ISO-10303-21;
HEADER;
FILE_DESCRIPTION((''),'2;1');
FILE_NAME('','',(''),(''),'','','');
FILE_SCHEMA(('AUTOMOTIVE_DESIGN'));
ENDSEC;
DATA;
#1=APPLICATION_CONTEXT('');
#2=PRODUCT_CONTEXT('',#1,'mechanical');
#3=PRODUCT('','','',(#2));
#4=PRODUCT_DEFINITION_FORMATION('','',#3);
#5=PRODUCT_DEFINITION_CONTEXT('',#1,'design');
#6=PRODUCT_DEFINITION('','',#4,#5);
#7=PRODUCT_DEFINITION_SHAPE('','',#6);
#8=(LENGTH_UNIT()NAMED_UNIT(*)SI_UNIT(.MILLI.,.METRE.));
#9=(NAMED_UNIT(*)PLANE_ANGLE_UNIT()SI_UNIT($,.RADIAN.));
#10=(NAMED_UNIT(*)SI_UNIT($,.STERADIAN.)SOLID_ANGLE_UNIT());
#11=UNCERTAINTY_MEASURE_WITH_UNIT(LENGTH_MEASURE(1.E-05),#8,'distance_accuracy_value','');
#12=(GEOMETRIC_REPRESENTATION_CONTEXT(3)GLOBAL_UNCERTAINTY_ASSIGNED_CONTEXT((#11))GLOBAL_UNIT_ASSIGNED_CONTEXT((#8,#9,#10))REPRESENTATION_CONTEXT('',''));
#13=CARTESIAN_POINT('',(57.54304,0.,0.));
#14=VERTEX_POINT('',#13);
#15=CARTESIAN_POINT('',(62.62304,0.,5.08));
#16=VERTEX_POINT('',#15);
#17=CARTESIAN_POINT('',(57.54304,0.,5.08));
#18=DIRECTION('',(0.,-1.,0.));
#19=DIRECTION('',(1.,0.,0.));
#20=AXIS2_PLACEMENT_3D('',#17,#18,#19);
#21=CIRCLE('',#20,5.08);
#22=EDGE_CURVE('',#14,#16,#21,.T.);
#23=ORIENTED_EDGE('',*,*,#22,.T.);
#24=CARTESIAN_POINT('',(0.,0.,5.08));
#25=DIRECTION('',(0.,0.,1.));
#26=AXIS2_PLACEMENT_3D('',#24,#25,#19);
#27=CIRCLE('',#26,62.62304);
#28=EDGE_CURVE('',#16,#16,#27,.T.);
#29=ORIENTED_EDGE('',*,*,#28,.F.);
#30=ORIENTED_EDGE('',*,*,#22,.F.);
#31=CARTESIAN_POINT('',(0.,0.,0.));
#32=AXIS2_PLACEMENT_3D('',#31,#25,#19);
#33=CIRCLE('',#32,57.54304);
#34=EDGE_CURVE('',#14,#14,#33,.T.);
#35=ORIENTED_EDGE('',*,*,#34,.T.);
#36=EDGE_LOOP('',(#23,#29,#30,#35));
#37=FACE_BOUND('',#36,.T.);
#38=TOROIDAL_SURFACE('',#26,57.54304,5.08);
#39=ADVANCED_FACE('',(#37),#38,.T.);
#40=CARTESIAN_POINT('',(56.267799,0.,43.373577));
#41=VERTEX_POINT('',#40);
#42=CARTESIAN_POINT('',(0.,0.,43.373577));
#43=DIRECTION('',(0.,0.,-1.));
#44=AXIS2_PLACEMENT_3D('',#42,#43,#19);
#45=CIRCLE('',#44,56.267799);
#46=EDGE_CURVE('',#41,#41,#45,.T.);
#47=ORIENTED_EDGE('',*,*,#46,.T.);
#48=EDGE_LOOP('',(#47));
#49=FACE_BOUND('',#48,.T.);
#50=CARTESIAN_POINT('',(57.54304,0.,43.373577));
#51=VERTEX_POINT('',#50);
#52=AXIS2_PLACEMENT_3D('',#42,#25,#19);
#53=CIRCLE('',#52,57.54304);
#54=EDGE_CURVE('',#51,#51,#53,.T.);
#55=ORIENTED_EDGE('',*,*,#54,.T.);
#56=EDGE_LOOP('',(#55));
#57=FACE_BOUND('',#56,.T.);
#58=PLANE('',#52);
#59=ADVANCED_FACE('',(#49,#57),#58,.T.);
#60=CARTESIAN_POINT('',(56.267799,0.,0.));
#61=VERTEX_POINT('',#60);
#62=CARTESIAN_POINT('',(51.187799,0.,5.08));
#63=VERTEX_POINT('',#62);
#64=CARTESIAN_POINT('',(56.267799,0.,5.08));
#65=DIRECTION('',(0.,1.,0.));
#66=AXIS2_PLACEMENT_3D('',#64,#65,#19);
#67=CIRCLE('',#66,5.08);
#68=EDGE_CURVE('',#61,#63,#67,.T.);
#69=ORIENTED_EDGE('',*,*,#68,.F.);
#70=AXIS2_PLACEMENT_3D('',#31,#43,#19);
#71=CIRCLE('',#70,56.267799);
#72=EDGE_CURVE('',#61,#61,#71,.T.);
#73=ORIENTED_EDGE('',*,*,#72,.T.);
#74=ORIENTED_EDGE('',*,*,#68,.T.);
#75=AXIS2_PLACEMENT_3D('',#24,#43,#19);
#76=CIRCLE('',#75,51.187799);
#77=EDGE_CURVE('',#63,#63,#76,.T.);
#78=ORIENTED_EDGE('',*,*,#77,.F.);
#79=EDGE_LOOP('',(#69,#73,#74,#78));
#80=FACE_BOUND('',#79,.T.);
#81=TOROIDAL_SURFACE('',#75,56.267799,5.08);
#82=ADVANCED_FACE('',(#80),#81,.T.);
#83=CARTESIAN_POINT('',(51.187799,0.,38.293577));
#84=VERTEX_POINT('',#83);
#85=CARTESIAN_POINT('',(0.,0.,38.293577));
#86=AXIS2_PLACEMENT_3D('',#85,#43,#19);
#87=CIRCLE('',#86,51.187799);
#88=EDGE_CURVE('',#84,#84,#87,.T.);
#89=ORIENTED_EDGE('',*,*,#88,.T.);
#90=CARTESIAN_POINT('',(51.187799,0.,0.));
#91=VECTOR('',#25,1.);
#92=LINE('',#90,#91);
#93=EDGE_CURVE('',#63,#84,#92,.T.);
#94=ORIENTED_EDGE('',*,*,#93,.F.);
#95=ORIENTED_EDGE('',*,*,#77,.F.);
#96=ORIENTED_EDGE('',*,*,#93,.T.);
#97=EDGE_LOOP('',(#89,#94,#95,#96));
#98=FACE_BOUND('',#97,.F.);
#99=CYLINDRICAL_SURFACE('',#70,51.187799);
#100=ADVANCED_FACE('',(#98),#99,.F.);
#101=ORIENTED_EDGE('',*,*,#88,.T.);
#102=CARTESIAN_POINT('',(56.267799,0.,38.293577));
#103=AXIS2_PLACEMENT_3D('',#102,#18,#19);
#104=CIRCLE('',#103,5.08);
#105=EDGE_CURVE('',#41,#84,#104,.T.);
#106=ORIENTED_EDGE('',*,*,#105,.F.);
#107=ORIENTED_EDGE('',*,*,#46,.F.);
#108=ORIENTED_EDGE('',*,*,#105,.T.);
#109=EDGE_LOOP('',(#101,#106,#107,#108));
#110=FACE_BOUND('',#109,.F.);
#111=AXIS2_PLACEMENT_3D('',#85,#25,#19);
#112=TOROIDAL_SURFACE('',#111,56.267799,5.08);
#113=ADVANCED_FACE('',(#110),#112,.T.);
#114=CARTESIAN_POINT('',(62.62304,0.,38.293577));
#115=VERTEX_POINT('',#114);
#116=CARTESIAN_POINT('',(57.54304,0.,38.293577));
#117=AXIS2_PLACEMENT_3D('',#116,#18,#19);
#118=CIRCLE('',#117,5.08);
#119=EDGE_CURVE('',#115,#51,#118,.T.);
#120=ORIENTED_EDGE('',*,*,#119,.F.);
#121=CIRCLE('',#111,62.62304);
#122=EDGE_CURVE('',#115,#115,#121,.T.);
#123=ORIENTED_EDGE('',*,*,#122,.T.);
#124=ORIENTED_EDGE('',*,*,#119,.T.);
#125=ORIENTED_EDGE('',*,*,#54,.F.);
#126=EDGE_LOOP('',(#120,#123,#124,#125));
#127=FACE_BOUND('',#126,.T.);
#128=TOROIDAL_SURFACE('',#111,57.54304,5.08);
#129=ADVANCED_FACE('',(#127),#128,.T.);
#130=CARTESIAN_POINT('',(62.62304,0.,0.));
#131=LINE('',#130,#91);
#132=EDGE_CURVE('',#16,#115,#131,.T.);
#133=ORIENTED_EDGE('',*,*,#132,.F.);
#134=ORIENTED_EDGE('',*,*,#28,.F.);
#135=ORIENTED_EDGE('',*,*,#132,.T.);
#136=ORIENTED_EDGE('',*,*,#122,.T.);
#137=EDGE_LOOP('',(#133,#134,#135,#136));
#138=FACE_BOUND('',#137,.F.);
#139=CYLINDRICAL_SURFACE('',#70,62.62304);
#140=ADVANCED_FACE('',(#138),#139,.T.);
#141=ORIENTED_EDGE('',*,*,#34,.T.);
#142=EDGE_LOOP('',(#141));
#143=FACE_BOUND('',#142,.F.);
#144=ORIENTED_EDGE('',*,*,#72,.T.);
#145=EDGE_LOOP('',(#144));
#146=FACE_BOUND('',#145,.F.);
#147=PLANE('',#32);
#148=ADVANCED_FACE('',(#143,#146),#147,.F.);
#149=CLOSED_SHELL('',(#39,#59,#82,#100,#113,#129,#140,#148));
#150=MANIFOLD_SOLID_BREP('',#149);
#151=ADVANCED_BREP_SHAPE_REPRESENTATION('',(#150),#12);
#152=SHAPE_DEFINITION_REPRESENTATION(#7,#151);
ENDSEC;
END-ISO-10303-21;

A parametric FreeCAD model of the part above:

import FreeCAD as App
import Part
import Sketcher
from FreeCAD import Vector
Q = App.Units.Quantity


def edges_at(feature, points):
    """Names of the edges that pass closest to the given points."""
    edges = feature.Shape.Edges
    near = lambda p: min(range(len(edges)), key=lambda i: edges[i].distToShape(Part.Vertex(*p))[0])
    return sorted({f"Edge{near(p) + 1}" for p in points})

doc = App.newDocument("Part")
body = doc.addObject("PartDesign::Body", "Body")

# Sketch on XY plane
sketch1 = body.newObject("Sketcher::SketchObject", "Sketch")
sketch1.AttachmentSupport = (doc.getObject("XY_Plane"), [""])
sketch1.MapMode = "FlatFace"
sketch1.addGeometry(Part.Circle(Vector(0, 0, 0), Vector(0, 0, 1), 63), False)
sketch1.addConstraint(Sketcher.Constraint("Coincident", 0, 3, -1, 1))
sketch1.addConstraint(Sketcher.Constraint("Diameter", 0, Q("125.24608 mm")))
pad1 = body.newObject("PartDesign::Pad", "Pad")
pad1.Profile = sketch1
pad1.Length = 43.373577

# Sketch on XY plane
sketch2 = body.newObject("Sketcher::SketchObject", "Sketch001")
sketch2.AttachmentSupport = (doc.getObject("XY_Plane"), [""])
sketch2.MapMode = "FlatFace"
sketch2.addGeometry(Part.Circle(Vector(0, 0, 0), Vector(0, 0, 1), 53), False)
sketch2.addConstraint(Sketcher.Constraint("Coincident", 0, 3, -1, 1))
sketch2.addConstraint(Sketcher.Constraint("Diameter", 0, Q("106.73725 mm")))
pad2 = body.newObject("PartDesign::Pad", "Pad001")
pad2.Profile = sketch2
pad2.Length = 5.646907

# Sketch on XY plane
sketch3 = body.newObject("Sketcher::SketchObject", "Sketch002")
sketch3.AttachmentSupport = (doc.getObject("XY_Plane"), [""])
sketch3.MapMode = "FlatFace"
sketch3.addGeometry(Part.Circle(Vector(0, 0, 0), Vector(0, 0, 1), 51), False)
sketch3.addConstraint(Sketcher.Constraint("Coincident", 0, 3, -1, 1))
sketch3.addConstraint(Sketcher.Constraint("Diameter", 0, Q("102.375598 mm")))
pocket1 = body.newObject("PartDesign::Pocket", "Pocket")
pocket1.Profile = sketch3
pocket1.Length = 64.743372
pocket1.Reversed = True
doc.recompute()

fillet = body.newObject("PartDesign::Fillet", "Fillet")
fillet.Base = (pocket1, edges_at(pocket1, [(-62.623, 0, 43.374)]))
fillet.Radius = Q("0.2 in")
doc.recompute()

fillet2 = body.newObject("PartDesign::Fillet", "Fillet001")
fillet2.Base = (fillet, edges_at(fillet, [(-51.188, 0, 0), (-51.188, 0, 43.374)]))
fillet2.Radius = Q("0.2 in")
doc.recompute()

fillet3 = body.newObject("PartDesign::Fillet", "Fillet002")
fillet3.Base = (fillet2, edges_at(fillet2, [(-62.623, 0, 0)]))
fillet3.Radius = Q("0.2 in")

doc.recompute()
